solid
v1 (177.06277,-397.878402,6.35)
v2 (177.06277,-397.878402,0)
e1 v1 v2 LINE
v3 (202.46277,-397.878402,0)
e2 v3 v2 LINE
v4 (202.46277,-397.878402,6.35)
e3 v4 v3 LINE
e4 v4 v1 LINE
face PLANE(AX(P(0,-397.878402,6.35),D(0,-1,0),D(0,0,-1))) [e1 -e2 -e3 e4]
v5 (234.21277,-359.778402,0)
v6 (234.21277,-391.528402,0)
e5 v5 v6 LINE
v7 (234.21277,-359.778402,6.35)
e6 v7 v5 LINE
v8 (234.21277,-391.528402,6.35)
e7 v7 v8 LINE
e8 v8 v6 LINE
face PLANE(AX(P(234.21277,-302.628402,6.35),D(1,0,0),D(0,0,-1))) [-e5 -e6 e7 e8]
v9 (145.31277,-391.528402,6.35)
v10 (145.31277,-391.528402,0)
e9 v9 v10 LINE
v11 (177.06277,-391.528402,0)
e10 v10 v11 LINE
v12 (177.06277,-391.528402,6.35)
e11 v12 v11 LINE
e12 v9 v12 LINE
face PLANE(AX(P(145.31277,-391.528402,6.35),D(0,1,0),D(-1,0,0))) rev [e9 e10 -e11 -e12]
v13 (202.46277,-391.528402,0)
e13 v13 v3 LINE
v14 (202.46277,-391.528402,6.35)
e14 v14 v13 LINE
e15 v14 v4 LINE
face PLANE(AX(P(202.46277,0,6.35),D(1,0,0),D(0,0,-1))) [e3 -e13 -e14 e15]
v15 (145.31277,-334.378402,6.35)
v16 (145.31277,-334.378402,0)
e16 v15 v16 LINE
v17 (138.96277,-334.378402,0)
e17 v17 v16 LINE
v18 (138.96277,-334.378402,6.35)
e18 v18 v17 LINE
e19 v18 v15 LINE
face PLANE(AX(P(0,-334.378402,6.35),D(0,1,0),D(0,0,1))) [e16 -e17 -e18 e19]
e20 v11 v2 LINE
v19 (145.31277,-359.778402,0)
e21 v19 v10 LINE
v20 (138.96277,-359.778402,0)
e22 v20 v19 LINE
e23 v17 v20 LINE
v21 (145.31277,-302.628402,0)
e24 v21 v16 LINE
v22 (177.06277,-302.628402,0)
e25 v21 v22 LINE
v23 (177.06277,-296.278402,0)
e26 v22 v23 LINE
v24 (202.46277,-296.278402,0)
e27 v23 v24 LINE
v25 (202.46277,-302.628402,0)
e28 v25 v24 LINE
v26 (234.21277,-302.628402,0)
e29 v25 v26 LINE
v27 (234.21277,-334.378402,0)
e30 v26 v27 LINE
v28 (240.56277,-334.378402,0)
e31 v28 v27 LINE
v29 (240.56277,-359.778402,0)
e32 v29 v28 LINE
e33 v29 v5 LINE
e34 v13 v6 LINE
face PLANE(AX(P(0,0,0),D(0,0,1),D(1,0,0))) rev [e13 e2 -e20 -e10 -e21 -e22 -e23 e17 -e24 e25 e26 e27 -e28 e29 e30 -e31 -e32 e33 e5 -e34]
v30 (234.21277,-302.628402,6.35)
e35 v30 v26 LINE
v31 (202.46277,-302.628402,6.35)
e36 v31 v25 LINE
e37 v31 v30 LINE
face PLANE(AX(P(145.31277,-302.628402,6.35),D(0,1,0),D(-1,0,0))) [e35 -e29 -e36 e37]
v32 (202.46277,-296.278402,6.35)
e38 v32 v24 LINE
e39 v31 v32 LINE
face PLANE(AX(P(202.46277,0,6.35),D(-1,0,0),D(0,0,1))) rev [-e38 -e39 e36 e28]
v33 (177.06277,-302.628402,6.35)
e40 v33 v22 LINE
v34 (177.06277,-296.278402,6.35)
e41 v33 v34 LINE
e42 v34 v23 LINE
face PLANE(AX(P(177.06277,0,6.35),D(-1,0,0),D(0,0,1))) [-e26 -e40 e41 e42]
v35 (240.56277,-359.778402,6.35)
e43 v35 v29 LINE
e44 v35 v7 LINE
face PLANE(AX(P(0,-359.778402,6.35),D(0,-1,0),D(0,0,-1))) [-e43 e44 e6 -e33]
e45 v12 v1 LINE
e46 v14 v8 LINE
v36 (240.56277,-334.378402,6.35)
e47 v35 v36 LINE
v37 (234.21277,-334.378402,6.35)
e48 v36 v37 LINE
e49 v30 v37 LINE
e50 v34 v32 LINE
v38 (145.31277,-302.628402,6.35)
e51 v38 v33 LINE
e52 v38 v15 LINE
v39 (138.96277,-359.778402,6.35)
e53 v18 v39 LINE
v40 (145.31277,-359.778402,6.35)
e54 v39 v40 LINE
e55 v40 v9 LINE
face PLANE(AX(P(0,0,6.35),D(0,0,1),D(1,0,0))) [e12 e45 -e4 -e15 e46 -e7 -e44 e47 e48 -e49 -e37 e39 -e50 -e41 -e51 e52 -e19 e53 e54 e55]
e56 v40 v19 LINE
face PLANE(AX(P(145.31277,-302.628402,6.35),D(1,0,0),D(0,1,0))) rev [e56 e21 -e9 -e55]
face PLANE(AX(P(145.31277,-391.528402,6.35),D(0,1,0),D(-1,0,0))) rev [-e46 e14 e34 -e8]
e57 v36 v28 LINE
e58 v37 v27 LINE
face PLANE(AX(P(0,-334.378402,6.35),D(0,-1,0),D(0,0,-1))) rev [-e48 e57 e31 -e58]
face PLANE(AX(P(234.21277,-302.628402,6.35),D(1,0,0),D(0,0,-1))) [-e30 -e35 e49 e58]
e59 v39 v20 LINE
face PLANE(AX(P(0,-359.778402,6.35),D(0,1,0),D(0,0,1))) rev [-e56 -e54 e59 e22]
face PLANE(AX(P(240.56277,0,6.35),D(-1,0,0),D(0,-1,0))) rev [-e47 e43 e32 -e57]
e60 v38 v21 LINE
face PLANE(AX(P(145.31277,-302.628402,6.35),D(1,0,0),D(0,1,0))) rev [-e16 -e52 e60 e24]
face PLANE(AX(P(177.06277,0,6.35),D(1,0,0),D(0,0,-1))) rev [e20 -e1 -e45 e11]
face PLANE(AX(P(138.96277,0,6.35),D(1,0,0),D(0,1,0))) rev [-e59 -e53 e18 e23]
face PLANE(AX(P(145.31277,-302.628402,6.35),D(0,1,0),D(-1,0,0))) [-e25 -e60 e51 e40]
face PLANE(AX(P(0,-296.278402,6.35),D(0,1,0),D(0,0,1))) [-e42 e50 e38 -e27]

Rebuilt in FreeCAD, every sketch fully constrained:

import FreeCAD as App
import Part
import Sketcher

V = App.Vector
Q = App.Units.Quantity

doc = App.newDocument("Part")
params = doc.addObject("Spreadsheet::Sheet", "Params")
for row, (alias, value) in enumerate([
    ("sketch1_width", "1 in"),
    ("sketch1_width2", "1.25 in"),
    ("sketch1_width3", "0.25 in"),
    ("pad1_length", "0.25 in"),
], start=1):
    params.set(f"A{row}", alias)
    params.set(f"B{row}", "=" + value)
    params.setAlias(f"B{row}", alias)

body = doc.addObject("PartDesign::Body", "Body")

# Sketch on XY plane
sketch1 = doc.addObject("Sketcher::SketchObject", "Sketch")
body.addObject(sketch1)
sketch1.AttachmentSupport = (doc.XY_Plane, [""])
sketch1.MapMode = "FlatFace"
sketch1.addGeometry([
    Part.LineSegment(V(177, -303, 0), V(145, -303, 0)),  # 0
    Part.LineSegment(V(145, -303, 0), V(145, -334, 0)),  # 1
    Part.LineSegment(V(145, -334, 0), V(139, -334, 0)),  # 2
    Part.LineSegment(V(139, -334, 0), V(139, -360, 0)),  # 3
    Part.LineSegment(V(139, -360, 0), V(145, -360, 0)),  # 4
    Part.LineSegment(V(145, -360, 0), V(145, -392, 0)),  # 5
    Part.LineSegment(V(145, -392, 0), V(177, -392, 0)),  # 6
    Part.LineSegment(V(177, -392, 0), V(177, -398, 0)),  # 7
    Part.LineSegment(V(177, -398, 0), V(202, -398, 0)),  # 8
    Part.LineSegment(V(202, -398, 0), V(202, -392, 0)),  # 9
    Part.LineSegment(V(202, -392, 0), V(234, -392, 0)),  # 10
    Part.LineSegment(V(234, -392, 0), V(234, -360, 0)),  # 11
    Part.LineSegment(V(234, -360, 0), V(241, -360, 0)),  # 12
    Part.LineSegment(V(241, -360, 0), V(241, -334, 0)),  # 13
    Part.LineSegment(V(241, -334, 0), V(234, -334, 0)),  # 14
    Part.LineSegment(V(234, -334, 0), V(234, -303, 0)),  # 15
    Part.LineSegment(V(234, -303, 0), V(202, -303, 0)),  # 16
    Part.LineSegment(V(202, -303, 0), V(202, -296, 0)),  # 17
    Part.LineSegment(V(202, -296, 0), V(177, -296, 0)),  # 18
    Part.LineSegment(V(177, -296, 0), V(177, -303, 0)),  # 19
], False)
sketch1.addConstraint([
    Sketcher.Constraint("Coincident", 0, 2, 1, 1),
    Sketcher.Constraint("Coincident", 1, 2, 2, 1),
    Sketcher.Constraint("Coincident", 2, 2, 3, 1),
    Sketcher.Constraint("Coincident", 3, 2, 4, 1),
    Sketcher.Constraint("Coincident", 4, 2, 5, 1),
    Sketcher.Constraint("Coincident", 5, 2, 6, 1),
    Sketcher.Constraint("Coincident", 6, 2, 7, 1),
    Sketcher.Constraint("Coincident", 7, 2, 8, 1),
    Sketcher.Constraint("Coincident", 8, 2, 9, 1),
    Sketcher.Constraint("Coincident", 9, 2, 10, 1),
    Sketcher.Constraint("Coincident", 10, 2, 11, 1),
    Sketcher.Constraint("Coincident", 11, 2, 12, 1),
    Sketcher.Constraint("Coincident", 12, 2, 13, 1),
    Sketcher.Constraint("Coincident", 13, 2, 14, 1),
    Sketcher.Constraint("Coincident", 14, 2, 15, 1),
    Sketcher.Constraint("Coincident", 15, 2, 16, 1),
    Sketcher.Constraint("Coincident", 16, 2, 17, 1),
    Sketcher.Constraint("Coincident", 17, 2, 18, 1),
    Sketcher.Constraint("Coincident", 18, 2, 19, 1),
    Sketcher.Constraint("Coincident", 19, 2, 0, 1),
    Sketcher.Constraint("Horizontal", 0),
    Sketcher.Constraint("Vertical", 1),
    Sketcher.Constraint("Horizontal", 2),
    Sketcher.Constraint("Vertical", 3),
    Sketcher.Constraint("Horizontal", 4),
    Sketcher.Constraint("Vertical", 5),
    Sketcher.Constraint("Horizontal", 6),
    Sketcher.Constraint("Vertical", 7),
    Sketcher.Constraint("Horizontal", 8),
    Sketcher.Constraint("Vertical", 9),
    Sketcher.Constraint("Horizontal", 10),
    Sketcher.Constraint("Vertical", 11),
    Sketcher.Constraint("Horizontal", 12),
    Sketcher.Constraint("Vertical", 13),
    Sketcher.Constraint("Horizontal", 14),
    Sketcher.Constraint("Vertical", 15),
    Sketcher.Constraint("Horizontal", 16),
    Sketcher.Constraint("Vertical", 17),
    Sketcher.Constraint("Horizontal", 18),
    Sketcher.Constraint("Vertical", 19),
    Sketcher.Constraint("Horizontal", 6, 2, 9, 2),
    Sketcher.Constraint("Horizontal", 4, 2, 11, 2),
    Sketcher.Constraint("Horizontal", 2, 2, 13, 2),
    Sketcher.Constraint("Horizontal", 0, 2, 15, 2),
    Sketcher.Constraint("Vertical", 1, 2, 4, 2),
    Sketcher.Constraint("Vertical", 11, 2, 14, 2),
    Sketcher.Constraint("Vertical", 9, 2, 16, 2),
    Sketcher.Constraint("Vertical", 7, 2, 18, 2),
    Sketcher.Constraint("Equal", 6, 10),
    Sketcher.Constraint("Equal", 4, 12),
    Sketcher.Constraint("Equal", 16, 1),
    Sketcher.Constraint("Equal", 18, 3),
    Sketcher.Constraint("Equal", 1, 5),
    Sketcher.Constraint("Equal", 14, 7),
    Sketcher.Constraint("Equal", 9, 17),
    Sketcher.Constraint("DistanceX", 8, 1, 8, 2, Q("1 in")),
    Sketcher.Constraint("DistanceX", 0, 2, 0, 1, Q("1.25 in")),
    Sketcher.Constraint("DistanceX", 2, 2, 2, 1, Q("0.25 in")),
    Sketcher.Constraint("DistanceY", 0, 2, -1, 1, Q("302.628402 mm")),
    Sketcher.Constraint("DistanceX", -1, 1, 0, 2, Q("145.31277 mm")),
])
sketch1.setExpression("Constraints[55]", "Params.sketch1_width")
sketch1.setExpression("Constraints[56]", "Params.sketch1_width2")
sketch1.setExpression("Constraints[57]", "Params.sketch1_width3")
pad1 = doc.addObject("PartDesign::Pad", "Pad")
body.addObject(pad1)
pad1.Profile = sketch1
pad1.setExpression("Length", "Params.pad1_length")

doc.recompute()
